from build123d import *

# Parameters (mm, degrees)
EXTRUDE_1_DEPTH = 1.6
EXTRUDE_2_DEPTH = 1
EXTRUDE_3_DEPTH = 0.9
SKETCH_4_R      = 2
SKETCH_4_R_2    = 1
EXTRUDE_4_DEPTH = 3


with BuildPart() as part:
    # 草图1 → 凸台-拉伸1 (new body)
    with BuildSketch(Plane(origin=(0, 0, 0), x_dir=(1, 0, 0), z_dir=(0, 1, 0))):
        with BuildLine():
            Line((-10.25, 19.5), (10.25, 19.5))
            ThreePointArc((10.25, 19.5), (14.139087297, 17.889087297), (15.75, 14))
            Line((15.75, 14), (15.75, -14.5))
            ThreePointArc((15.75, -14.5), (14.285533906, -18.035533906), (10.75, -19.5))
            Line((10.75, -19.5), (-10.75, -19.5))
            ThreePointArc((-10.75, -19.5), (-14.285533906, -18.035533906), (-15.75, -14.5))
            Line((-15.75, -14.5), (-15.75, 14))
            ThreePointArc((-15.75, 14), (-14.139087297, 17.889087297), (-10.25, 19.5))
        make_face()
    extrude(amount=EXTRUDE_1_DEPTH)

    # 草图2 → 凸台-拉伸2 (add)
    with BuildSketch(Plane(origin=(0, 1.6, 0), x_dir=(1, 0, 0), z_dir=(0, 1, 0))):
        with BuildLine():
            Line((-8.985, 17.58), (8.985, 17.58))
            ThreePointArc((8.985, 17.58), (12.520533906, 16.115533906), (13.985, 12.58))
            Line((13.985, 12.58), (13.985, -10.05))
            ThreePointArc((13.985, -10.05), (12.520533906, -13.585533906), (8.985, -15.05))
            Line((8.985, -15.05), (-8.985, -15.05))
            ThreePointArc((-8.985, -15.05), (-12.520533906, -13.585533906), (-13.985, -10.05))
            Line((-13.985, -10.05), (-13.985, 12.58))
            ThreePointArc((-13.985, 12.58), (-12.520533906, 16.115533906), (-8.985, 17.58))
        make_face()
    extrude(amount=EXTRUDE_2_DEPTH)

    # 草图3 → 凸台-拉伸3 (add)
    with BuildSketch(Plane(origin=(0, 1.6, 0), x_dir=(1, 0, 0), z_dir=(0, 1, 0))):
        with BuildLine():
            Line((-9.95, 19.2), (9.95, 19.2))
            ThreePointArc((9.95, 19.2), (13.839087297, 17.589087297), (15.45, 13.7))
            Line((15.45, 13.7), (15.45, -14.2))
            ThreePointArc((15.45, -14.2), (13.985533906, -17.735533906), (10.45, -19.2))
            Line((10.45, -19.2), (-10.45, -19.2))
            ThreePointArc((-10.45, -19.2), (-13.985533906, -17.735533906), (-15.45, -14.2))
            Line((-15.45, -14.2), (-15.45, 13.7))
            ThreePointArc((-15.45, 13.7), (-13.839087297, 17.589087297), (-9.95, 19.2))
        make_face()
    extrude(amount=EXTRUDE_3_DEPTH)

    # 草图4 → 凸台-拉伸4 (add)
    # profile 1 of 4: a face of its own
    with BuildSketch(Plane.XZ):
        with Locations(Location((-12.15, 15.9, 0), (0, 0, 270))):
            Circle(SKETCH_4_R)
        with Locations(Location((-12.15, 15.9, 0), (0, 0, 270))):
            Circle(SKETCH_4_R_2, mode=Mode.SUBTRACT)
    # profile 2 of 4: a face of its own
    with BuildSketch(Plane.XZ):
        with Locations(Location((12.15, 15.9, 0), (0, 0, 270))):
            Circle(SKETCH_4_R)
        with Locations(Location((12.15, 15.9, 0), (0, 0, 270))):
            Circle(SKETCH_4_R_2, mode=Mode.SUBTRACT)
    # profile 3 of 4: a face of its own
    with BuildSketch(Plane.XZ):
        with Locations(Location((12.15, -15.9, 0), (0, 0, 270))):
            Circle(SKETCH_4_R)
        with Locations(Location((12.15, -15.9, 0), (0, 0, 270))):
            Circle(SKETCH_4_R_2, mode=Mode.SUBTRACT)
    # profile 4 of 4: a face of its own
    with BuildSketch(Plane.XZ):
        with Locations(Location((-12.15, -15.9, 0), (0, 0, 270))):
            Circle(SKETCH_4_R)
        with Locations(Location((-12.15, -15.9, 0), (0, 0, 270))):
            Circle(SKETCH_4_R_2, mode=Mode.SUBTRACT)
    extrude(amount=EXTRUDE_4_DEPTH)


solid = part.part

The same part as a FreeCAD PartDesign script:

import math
import FreeCAD as App
import Part
import Sketcher
Q = App.Units.Quantity

doc = App.newDocument("Part")
body = doc.addObject("PartDesign::Body", "Body")

# Sketch on XZ plane
sketch1 = body.newObject("Sketcher::SketchObject", "Sketch")
sketch1.AttachmentSupport = (doc.getObject("XZ_Plane"), [""])
sketch1.MapMode = "FlatFace"
sketch1.addGeometry([
    Part.LineSegment(App.Vector(10, -20, 0), App.Vector(-10, -20, 0)),  # 0
    Part.ArcOfCircle(Part.Circle(App.Vector(-10, -14, 0), App.Vector(0, 0, 1), 5), math.radians(180), math.radians(270)),  # 1
    Part.LineSegment(App.Vector(-16, -14, 0), App.Vector(-16, 14, 0)),  # 2
    Part.ArcOfCircle(Part.Circle(App.Vector(-11, 14, 0), App.Vector(0, 0, 1), 5), math.radians(90), math.radians(180)),  # 3
    Part.LineSegment(App.Vector(-11, 20, 0), App.Vector(11, 20, 0)),  # 4
    Part.ArcOfCircle(Part.Circle(App.Vector(11, 14, 0), App.Vector(0, 0, 1), 5), math.radians(0), math.radians(90)),  # 5
    Part.LineSegment(App.Vector(16, 14, 0), App.Vector(16, -14, 0)),  # 6
    Part.ArcOfCircle(Part.Circle(App.Vector(10, -14, 0), App.Vector(0, 0, 1), 5), math.radians(-90), math.radians(0)),  # 7
], False)
sketch1.addConstraint([
    Sketcher.Constraint("Tangent", 0, 2, 1, 2),
    Sketcher.Constraint("Tangent", 1, 1, 2, 1),
    Sketcher.Constraint("Tangent", 2, 2, 3, 2),
    Sketcher.Constraint("Tangent", 3, 1, 4, 1),
    Sketcher.Constraint("Tangent", 4, 2, 5, 2),
    Sketcher.Constraint("Tangent", 5, 1, 6, 1),
    Sketcher.Constraint("Tangent", 6, 2, 7, 2),
    Sketcher.Constraint("Tangent", 7, 1, 0, 1),
    Sketcher.Constraint("Horizontal", 0),
    Sketcher.Constraint("Vertical", 2),
    Sketcher.Constraint("Horizontal", 4),
    Sketcher.Constraint("Vertical", 6),
    Sketcher.Constraint("Equal", 3, 5),
    Sketcher.Constraint("Equal", 1, 7),
    Sketcher.Constraint("Radius", 3, Q("5 mm")),
    Sketcher.Constraint("Radius", 1, Q("5.5 mm")),
    Sketcher.Constraint("DistanceX", 0, 2, 0, 1, Q("20.5 mm")),
    Sketcher.Constraint("DistanceY", 2, 1, 2, 2, Q("28.5 mm")),
    Sketcher.Constraint("DistanceY", 1, 3, -1, 1, Q("14 mm")),
    Sketcher.Constraint("DistanceX", 1, 3, -1, 1, Q("10.25 mm")),
])
pad1 = body.newObject("PartDesign::Pad", "Pad")
pad1.Profile = sketch1
pad1.Length = 1.6
pad1.Reversed = True

# Sketch on XZ plane
sketch2 = body.newObject("Sketcher::SketchObject", "Sketch001")
sketch2.AttachmentSupport = (doc.getObject("XZ_Plane"), [""])
sketch2.MapMode = "FlatFace"
sketch2.AttachmentOffset = App.Placement(App.Vector(0, 0, -1.6), App.Rotation())
sketch2.addGeometry([
    Part.LineSegment(App.Vector(9, -18, 0), App.Vector(-9, -18, 0)),  # 0
    Part.ArcOfCircle(Part.Circle(App.Vector(-9, -13, 0), App.Vector(0, 0, 1), 5), math.radians(180), math.radians(270)),  # 1
    Part.LineSegment(App.Vector(-14, -13, 0), App.Vector(-14, 10, 0)),  # 2
    Part.ArcOfCircle(Part.Circle(App.Vector(-9, 10, 0), App.Vector(0, 0, 1), 5), math.radians(90), math.radians(180)),  # 3
    Part.LineSegment(App.Vector(-9, 15, 0), App.Vector(9, 15, 0)),  # 4
    Part.ArcOfCircle(Part.Circle(App.Vector(9, 10, 0), App.Vector(0, 0, 1), 5), math.radians(0), math.radians(90)),  # 5
    Part.LineSegment(App.Vector(14, 10, 0), App.Vector(14, -13, 0)),  # 6
    Part.ArcOfCircle(Part.Circle(App.Vector(9, -13, 0), App.Vector(0, 0, 1), 5), math.radians(-90), math.radians(0)),  # 7
], False)
sketch2.addConstraint([
    Sketcher.Constraint("Tangent", 0, 2, 1, 2),
    Sketcher.Constraint("Tangent", 1, 1, 2, 1),
    Sketcher.Constraint("Tangent", 2, 2, 3, 2),
    Sketcher.Constraint("Tangent", 3, 1, 4, 1),
    Sketcher.Constraint("Tangent", 4, 2, 5, 2),
    Sketcher.Constraint("Tangent", 5, 1, 6, 1),
    Sketcher.Constraint("Tangent", 6, 2, 7, 2),
    Sketcher.Constraint("Tangent", 7, 1, 0, 1),
    Sketcher.Constraint("Horizontal", 0),
    Sketcher.Constraint("Vertical", 2),
    Sketcher.Constraint("Horizontal", 4),
    Sketcher.Constraint("Vertical", 6),
    Sketcher.Constraint("Equal", 1, 3),
    Sketcher.Constraint("Equal", 3, 5),
    Sketcher.Constraint("Equal", 5, 7),
    Sketcher.Constraint("Radius", 1, Q("5 mm")),
    Sketcher.Constraint("DistanceX", 0, 2, 0, 1, Q("17.97 mm")),
    Sketcher.Constraint("DistanceY", 2, 1, 2, 2, Q("22.63 mm")),
    Sketcher.Constraint("DistanceY", 1, 3, -1, 1, Q("12.58 mm")),
    Sketcher.Constraint("DistanceX", 1, 3, -1, 1, Q("8.985 mm")),
])
pad2 = body.newObject("PartDesign::Pad", "Pad001")
pad2.Profile = sketch2
pad2.Length = 1
pad2.Reversed = True

# Sketch on XZ plane
sketch3 = body.newObject("Sketcher::SketchObject", "Sketch002")
sketch3.AttachmentSupport = (doc.getObject("XZ_Plane"), [""])
sketch3.MapMode = "FlatFace"
sketch3.AttachmentOffset = App.Placement(App.Vector(0, 0, -1.6), App.Rotation())
sketch3.addGeometry([
    Part.LineSegment(App.Vector(10, -19, 0), App.Vector(-10, -19, 0)),  # 0
    Part.ArcOfCircle(Part.Circle(App.Vector(-10, -14, 0), App.Vector(0, 0, 1), 5), math.radians(180), math.radians(270)),  # 1
    Part.LineSegment(App.Vector(-15, -14, 0), App.Vector(-15, 14, 0)),  # 2
    Part.ArcOfCircle(Part.Circle(App.Vector(-10, 14, 0), App.Vector(0, 0, 1), 5), math.radians(90), math.radians(180)),  # 3
    Part.LineSegment(App.Vector(-10, 19, 0), App.Vector(10, 19, 0)),  # 4
    Part.ArcOfCircle(Part.Circle(App.Vector(10, 14, 0), App.Vector(0, 0, 1), 5), math.radians(0), math.radians(90)),  # 5
    Part.LineSegment(App.Vector(15, 14, 0), App.Vector(15, -14, 0)),  # 6
    Part.ArcOfCircle(Part.Circle(App.Vector(10, -14, 0), App.Vector(0, 0, 1), 5), math.radians(-90), math.radians(0)),  # 7
], False)
sketch3.addConstraint([
    Sketcher.Constraint("Tangent", 0, 2, 1, 2),
    Sketcher.Constraint("Tangent", 1, 1, 2, 1),
    Sketcher.Constraint("Tangent", 2, 2, 3, 2),
    Sketcher.Constraint("Tangent", 3, 1, 4, 1),
    Sketcher.Constraint("Tangent", 4, 2, 5, 2),
    Sketcher.Constraint("Tangent", 5, 1, 6, 1),
    Sketcher.Constraint("Tangent", 6, 2, 7, 2),
    Sketcher.Constraint("Tangent", 7, 1, 0, 1),
    Sketcher.Constraint("Horizontal", 0),
    Sketcher.Constraint("Vertical", 2),
    Sketcher.Constraint("Horizontal", 4),
    Sketcher.Constraint("Vertical", 6),
    Sketcher.Constraint("Equal", 3, 5),
    Sketcher.Constraint("Equal", 1, 7),
    Sketcher.Constraint("Radius", 3, Q("5 mm")),
    Sketcher.Constraint("Radius", 1, Q("5.5 mm")),
    Sketcher.Constraint("DistanceX", 0, 2, 0, 1, Q("19.9 mm")),
    Sketcher.Constraint("DistanceY", 2, 1, 2, 2, Q("27.9 mm")),
    Sketcher.Constraint("DistanceY", 1, 3, -1, 1, Q("13.7 mm")),
    Sketcher.Constraint("DistanceX", 1, 3, -1, 1, Q("9.95 mm")),
])
pad3 = body.newObject("PartDesign::Pad", "Pad002")
pad3.Profile = sketch3
pad3.Length = 0.9
pad3.Reversed = True

# Sketch on XZ plane
sketch4 = body.newObject("Sketcher::SketchObject", "Sketch003")
sketch4.AttachmentSupport = (doc.getObject("XZ_Plane"), [""])
sketch4.MapMode = "FlatFace"
sketch4.addGeometry([
    Part.Circle(App.Vector(-12.2, 15.9, 0), App.Vector(0, 0, 1), 2),  # 0
    Part.Circle(App.Vector(-12.2, 15.9, 0), App.Vector(0, 0, 1), 1),  # 1
    Part.Circle(App.Vector(12.2, 15.9, 0), App.Vector(0, 0, 1), 2),  # 2
    Part.Circle(App.Vector(12.2, 15.9, 0), App.Vector(0, 0, 1), 1),  # 3
    Part.Circle(App.Vector(12.2, -15.9, 0), App.Vector(0, 0, 1), 2),  # 4
    Part.Circle(App.Vector(12.2, -15.9, 0), App.Vector(0, 0, 1), 1),  # 5
    Part.Circle(App.Vector(-12.2, -15.9, 0), App.Vector(0, 0, 1), 2),  # 6
    Part.Circle(App.Vector(-12.2, -15.9, 0), App.Vector(0, 0, 1), 1),  # 7
], False)
sketch4.addConstraint([
    Sketcher.Constraint("Coincident", 1, 3, 0, 3),
    Sketcher.Constraint("Coincident", 3, 3, 2, 3),
    Sketcher.Constraint("Coincident", 5, 3, 4, 3),
    Sketcher.Constraint("Coincident", 7, 3, 6, 3),
    Sketcher.Constraint("Equal", 0, 2),
    Sketcher.Constraint("Equal", 1, 3),
    Sketcher.Constraint("Equal", 2, 4),
    Sketcher.Constraint("Equal", 3, 5),
    Sketcher.Constraint("Equal", 4, 6),
    Sketcher.Constraint("Equal", 5, 7),
    Sketcher.Constraint("Symmetric", 0, 3, 4, 3, -1, 1),
    Sketcher.Constraint("Symmetric", 2, 3, 6, 3, -1, 1),
    Sketcher.Constraint("Symmetric", 0, 3, 2, 3, -2),
    Sketcher.Constraint("Diameter", 0, Q("4 mm")),
    Sketcher.Constraint("Diameter", 1, Q("2 mm")),
    Sketcher.Constraint("DistanceY", -1, 1, 0, 3, Q("15.9 mm")),
    Sketcher.Constraint("DistanceX", 0, 3, 2, 3, Q("24.3 mm")),
])
pad4 = body.newObject("PartDesign::Pad", "Pad003")
pad4.Profile = sketch4
pad4.Length = 3

doc.recompute()
